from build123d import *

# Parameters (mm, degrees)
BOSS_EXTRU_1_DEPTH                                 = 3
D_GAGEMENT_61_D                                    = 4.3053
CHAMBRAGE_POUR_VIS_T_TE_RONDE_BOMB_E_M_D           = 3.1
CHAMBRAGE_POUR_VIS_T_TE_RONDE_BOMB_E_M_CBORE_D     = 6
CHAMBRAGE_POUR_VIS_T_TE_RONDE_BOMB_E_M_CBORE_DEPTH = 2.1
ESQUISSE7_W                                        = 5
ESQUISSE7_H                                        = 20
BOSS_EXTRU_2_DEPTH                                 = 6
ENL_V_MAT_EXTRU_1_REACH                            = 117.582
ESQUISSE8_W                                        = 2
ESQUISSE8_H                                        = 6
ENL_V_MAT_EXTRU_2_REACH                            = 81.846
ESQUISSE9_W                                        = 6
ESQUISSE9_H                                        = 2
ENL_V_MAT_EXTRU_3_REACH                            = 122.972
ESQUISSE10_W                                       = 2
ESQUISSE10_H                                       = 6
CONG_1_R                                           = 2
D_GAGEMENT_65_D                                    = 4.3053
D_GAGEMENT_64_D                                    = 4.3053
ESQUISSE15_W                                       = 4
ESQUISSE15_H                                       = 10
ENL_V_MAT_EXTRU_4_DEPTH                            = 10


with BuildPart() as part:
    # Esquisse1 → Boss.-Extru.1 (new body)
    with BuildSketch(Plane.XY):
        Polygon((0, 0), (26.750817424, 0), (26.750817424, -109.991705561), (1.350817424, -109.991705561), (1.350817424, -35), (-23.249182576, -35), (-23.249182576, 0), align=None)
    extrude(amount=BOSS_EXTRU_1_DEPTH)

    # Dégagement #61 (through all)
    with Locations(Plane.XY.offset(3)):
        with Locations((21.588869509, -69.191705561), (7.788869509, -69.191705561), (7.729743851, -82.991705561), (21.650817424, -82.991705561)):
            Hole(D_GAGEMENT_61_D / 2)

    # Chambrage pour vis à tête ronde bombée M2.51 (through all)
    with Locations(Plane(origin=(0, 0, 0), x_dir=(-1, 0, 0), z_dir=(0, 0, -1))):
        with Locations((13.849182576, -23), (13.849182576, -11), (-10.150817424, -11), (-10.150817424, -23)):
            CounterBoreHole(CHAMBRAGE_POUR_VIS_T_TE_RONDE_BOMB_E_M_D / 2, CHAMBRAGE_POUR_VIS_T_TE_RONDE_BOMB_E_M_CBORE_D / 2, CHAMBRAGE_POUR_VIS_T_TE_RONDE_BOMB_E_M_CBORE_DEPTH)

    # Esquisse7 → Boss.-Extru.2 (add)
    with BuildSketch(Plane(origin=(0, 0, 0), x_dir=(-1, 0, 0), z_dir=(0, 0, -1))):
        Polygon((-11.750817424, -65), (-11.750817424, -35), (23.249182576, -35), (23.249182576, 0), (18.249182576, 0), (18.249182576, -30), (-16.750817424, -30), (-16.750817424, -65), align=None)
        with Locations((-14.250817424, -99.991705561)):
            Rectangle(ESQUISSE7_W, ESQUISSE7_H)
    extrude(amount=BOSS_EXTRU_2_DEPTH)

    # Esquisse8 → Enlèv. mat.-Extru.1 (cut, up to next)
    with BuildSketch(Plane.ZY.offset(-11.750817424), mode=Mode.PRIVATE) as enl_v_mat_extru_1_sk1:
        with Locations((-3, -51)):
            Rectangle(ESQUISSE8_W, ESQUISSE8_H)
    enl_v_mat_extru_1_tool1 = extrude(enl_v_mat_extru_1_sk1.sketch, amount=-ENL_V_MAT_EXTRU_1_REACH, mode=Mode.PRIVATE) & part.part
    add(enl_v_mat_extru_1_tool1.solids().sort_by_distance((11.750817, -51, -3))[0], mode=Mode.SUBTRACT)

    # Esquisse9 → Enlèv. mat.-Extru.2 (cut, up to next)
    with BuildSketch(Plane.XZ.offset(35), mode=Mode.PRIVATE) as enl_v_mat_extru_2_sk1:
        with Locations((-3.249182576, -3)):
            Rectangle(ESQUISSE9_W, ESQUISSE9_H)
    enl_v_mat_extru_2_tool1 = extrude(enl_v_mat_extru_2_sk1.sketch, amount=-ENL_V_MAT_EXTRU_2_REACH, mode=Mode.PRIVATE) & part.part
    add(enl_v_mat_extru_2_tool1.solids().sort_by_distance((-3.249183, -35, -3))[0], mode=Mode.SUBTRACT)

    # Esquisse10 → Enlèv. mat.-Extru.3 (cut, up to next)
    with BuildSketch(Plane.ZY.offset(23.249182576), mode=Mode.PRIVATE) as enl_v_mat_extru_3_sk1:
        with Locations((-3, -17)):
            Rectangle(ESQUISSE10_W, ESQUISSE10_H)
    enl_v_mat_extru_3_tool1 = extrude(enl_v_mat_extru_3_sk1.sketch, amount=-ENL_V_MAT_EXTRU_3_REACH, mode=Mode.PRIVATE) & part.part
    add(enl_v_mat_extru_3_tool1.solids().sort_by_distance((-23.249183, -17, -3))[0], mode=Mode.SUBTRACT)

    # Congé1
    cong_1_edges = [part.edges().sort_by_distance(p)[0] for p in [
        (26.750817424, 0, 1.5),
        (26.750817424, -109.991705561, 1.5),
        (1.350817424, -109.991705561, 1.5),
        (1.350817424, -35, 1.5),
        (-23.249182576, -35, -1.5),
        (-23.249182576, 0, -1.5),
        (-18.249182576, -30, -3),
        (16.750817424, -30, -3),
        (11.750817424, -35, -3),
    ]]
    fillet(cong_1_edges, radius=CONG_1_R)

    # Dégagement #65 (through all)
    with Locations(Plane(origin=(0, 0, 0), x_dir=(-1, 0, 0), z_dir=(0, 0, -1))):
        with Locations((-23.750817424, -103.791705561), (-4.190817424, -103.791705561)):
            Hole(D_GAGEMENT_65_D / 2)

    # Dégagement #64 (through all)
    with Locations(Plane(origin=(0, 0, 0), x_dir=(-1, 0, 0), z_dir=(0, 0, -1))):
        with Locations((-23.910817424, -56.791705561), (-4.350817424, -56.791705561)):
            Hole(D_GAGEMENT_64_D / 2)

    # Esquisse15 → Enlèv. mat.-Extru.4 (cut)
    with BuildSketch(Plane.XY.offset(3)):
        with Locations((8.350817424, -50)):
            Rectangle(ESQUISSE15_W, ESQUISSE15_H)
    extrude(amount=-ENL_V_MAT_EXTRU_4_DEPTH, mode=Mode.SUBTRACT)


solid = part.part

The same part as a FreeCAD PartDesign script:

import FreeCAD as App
import Part
import Sketcher

V = App.Vector
Q = App.Units.Quantity


def edges_at(feature, points):
    """Names of the edges that pass closest to the given points."""
    edges = feature.Shape.Edges
    near = lambda p: min(range(len(edges)), key=lambda i: edges[i].distToShape(Part.Vertex(*p))[0])
    return sorted({f"Edge{near(p) + 1}" for p in points})

doc = App.newDocument("Part")
body = doc.addObject("PartDesign::Body", "Body")

sketch1 = doc.addObject("Sketcher::SketchObject", "Sketch")
body.addObject(sketch1)
sketch1.AttachmentSupport = (doc.XY_Plane, [""])
sketch1.MapMode = "FlatFace"
sketch1.addGeometry(Part.LineSegment(V(27, 0, 0), V(-23, 0, 0)), False)
sketch1.addGeometry(Part.LineSegment(V(-23, 0, 0), V(-23, -35, 0)), False)
sketch1.addGeometry(Part.LineSegment(V(-23, -35, 0), V(1, -35, 0)), False)
sketch1.addGeometry(Part.LineSegment(V(1, -35, 0), V(1, -110, 0)), False)
sketch1.addGeometry(Part.LineSegment(V(1, -110, 0), V(27, -110, 0)), False)
sketch1.addGeometry(Part.LineSegment(V(27, -110, 0), V(27, 0, 0)), False)
sketch1.addConstraint(Sketcher.Constraint("Coincident", 0, 2, 1, 1))
sketch1.addConstraint(Sketcher.Constraint("Coincident", 1, 2, 2, 1))
sketch1.addConstraint(Sketcher.Constraint("Coincident", 2, 2, 3, 1))
sketch1.addConstraint(Sketcher.Constraint("Coincident", 3, 2, 4, 1))
sketch1.addConstraint(Sketcher.Constraint("Coincident", 4, 2, 5, 1))
sketch1.addConstraint(Sketcher.Constraint("Coincident", 5, 2, 0, 1))
sketch1.addConstraint(Sketcher.Constraint("Horizontal", 0))
sketch1.addConstraint(Sketcher.Constraint("Vertical", 1))
sketch1.addConstraint(Sketcher.Constraint("Horizontal", 2))
sketch1.addConstraint(Sketcher.Constraint("Vertical", 3))
sketch1.addConstraint(Sketcher.Constraint("Horizontal", 4))
sketch1.addConstraint(Sketcher.Constraint("Vertical", 5))
sketch1.addConstraint(Sketcher.Constraint("PointOnObject", 0, 2, -1))
sketch1.addConstraint(Sketcher.Constraint("DistanceX", 0, 2, 0, 1, Q("50 mm")))
sketch1.addConstraint(Sketcher.Constraint("DistanceY", 1, 2, 1, 1, Q("35 mm")))
sketch1.addConstraint(Sketcher.Constraint("DistanceX", 2, 1, 2, 2, Q("24.6 mm")))
sketch1.addConstraint(Sketcher.Constraint("DistanceY", 3, 2, 3, 1, Q("74.991706 mm")))
sketch1.addConstraint(Sketcher.Constraint("DistanceX", 0, 2, -1, 1, Q("23.249183 mm")))
pad1 = doc.addObject("PartDesign::Pad", "Pad")
body.addObject(pad1)
pad1.Profile = sketch1
pad1.Length = 3

sketch2 = doc.addObject("Sketcher::SketchObject", "Sketch001")
body.addObject(sketch2)
sketch2.AttachmentSupport = (doc.XY_Plane, [""])
sketch2.MapMode = "FlatFace"
sketch2.AttachmentOffset = App.Placement(V(0, 0, 3), App.Rotation())
sketch2.addGeometry(Part.Circle(V(21.6, -69.2, 0), V(0, 0, 1), 2.2), False)
sketch2.addGeometry(Part.Circle(V(7.8, -69.2, 0), V(0, 0, 1), 2.2), False)
sketch2.addGeometry(Part.Circle(V(7.7, -83, 0), V(0, 0, 1), 2.2), False)
sketch2.addGeometry(Part.Circle(V(21.7, -83, 0), V(0, 0, 1), 2.2), False)
sketch2.addConstraint(Sketcher.Constraint("Equal", 0, 1))
sketch2.addConstraint(Sketcher.Constraint("Equal", 1, 2))
sketch2.addConstraint(Sketcher.Constraint("Equal", 2, 3))
sketch2.addConstraint(Sketcher.Constraint("Horizontal", 0, 3, 1, 3))
sketch2.addConstraint(Sketcher.Constraint("Horizontal", 2, 3, 3, 3))
sketch2.addConstraint(Sketcher.Constraint("Diameter", 0, Q("4.3053 mm")))
sketch2.addConstraint(Sketcher.Constraint("DistanceX", 1, 3, 0, 3, Q("13.8 mm")))
sketch2.addConstraint(Sketcher.Constraint("DistanceY", 2, 3, 1, 3, Q("13.8 mm")))
sketch2.addConstraint(Sketcher.Constraint("DistanceX", -1, 1, 0, 3, Q("21.58887 mm")))
sketch2.addConstraint(Sketcher.Constraint("DistanceY", 0, 3, -1, 1, Q("69.191706 mm")))
sketch2.addConstraint(Sketcher.Constraint("DistanceX", -1, 1, 2, 3, Q("7.729744 mm")))
sketch2.addConstraint(Sketcher.Constraint("DistanceX", -1, 1, 3, 3, Q("21.650817 mm")))
doc.recompute()
hole = doc.addObject("PartDesign::Hole", "Hole")
body.addObject(hole)
hole.Profile = sketch2
hole.ThreadType = "None"
hole.Diameter = 4.3053
hole.DepthType = "ThroughAll"

sketch3 = doc.addObject("Sketcher::SketchObject", "Sketch002")
body.addObject(sketch3)
sketch3.AttachmentSupport = (doc.XY_Plane, [""])
sketch3.MapMode = "FlatFace"
sketch3.addGeometry(Part.Circle(V(-13.8, -23, 0), V(0, 0, 1), 1.6), False)
sketch3.addGeometry(Part.Circle(V(-13.8, -11, 0), V(0, 0, 1), 1.6), False)
sketch3.addGeometry(Part.Circle(V(10.2, -11, 0), V(0, 0, 1), 1.6), False)
sketch3.addGeometry(Part.Circle(V(10.2, -23, 0), V(0, 0, 1), 1.6), False)
sketch3.addConstraint(Sketcher.Constraint("Equal", 0, 1))
sketch3.addConstraint(Sketcher.Constraint("Equal", 1, 2))
sketch3.addConstraint(Sketcher.Constraint("Equal", 2, 3))
sketch3.addConstraint(Sketcher.Constraint("Horizontal", 1, 3, 2, 3))
sketch3.addConstraint(Sketcher.Constraint("Horizontal", 0, 3, 3, 3))
sketch3.addConstraint(Sketcher.Constraint("Vertical", 0, 3, 1, 3))
sketch3.addConstraint(Sketcher.Constraint("Vertical", 2, 3, 3, 3))
sketch3.addConstraint(Sketcher.Constraint("Diameter", 0, Q("3.1 mm")))
sketch3.addConstraint(Sketcher.Constraint("DistanceY", 0, 3, -1, 1, Q("23 mm")))
sketch3.addConstraint(Sketcher.Constraint("DistanceY", 1, 3, -1, 1, Q("11 mm")))
sketch3.addConstraint(Sketcher.Constraint("DistanceX", 1, 3, 2, 3, Q("24 mm")))
sketch3.addConstraint(Sketcher.Constraint("DistanceX", 0, 3, -1, 1, Q("13.849183 mm")))
doc.recompute()
hole2 = doc.addObject("PartDesign::Hole", "Hole001")
body.addObject(hole2)
hole2.Profile = sketch3
hole2.ThreadType = "None"
hole2.Diameter = 3.1
hole2.DepthType = "ThroughAll"
hole2.HoleCutType = "Counterbore"
hole2.HoleCutDiameter = 6
hole2.HoleCutDepth = 2.1
hole2.Reversed = True

sketch4 = doc.addObject("Sketcher::SketchObject", "Sketch003")
body.addObject(sketch4)
sketch4.AttachmentSupport = (doc.XY_Plane, [""])
sketch4.MapMode = "FlatFace"
sketch4.addGeometry(Part.LineSegment(V(12, -65, 0), V(12, -35, 0)), False)
sketch4.addGeometry(Part.LineSegment(V(12, -35, 0), V(-23, -35, 0)), False)
sketch4.addGeometry(Part.LineSegment(V(-23, -35, 0), V(-23, 0, 0)), False)
sketch4.addGeometry(Part.LineSegment(V(-23, 0, 0), V(-18, 0, 0)), False)
sketch4.addGeometry(Part.LineSegment(V(-18, 0, 0), V(-18, -30, 0)), False)
sketch4.addGeometry(Part.LineSegment(V(-18, -30, 0), V(17, -30, 0)), False)
sketch4.addGeometry(Part.LineSegment(V(17, -30, 0), V(17, -65, 0)), False)
sketch4.addGeometry(Part.LineSegment(V(17, -65, 0), V(12, -65, 0)), False)
sketch4.addGeometry(Part.LineSegment(V(17, -90, 0), V(17, -110, 0)), False)
sketch4.addGeometry(Part.LineSegment(V(17, -110, 0), V(12, -110, 0)), False)
sketch4.addGeometry(Part.LineSegment(V(12, -110, 0), V(12, -90, 0)), False)
sketch4.addGeometry(Part.LineSegment(V(12, -90, 0), V(17, -90, 0)), False)
sketch4.addConstraint(Sketcher.Constraint("Coincident", 0, 2, 1, 1))
sketch4.addConstraint(Sketcher.Constraint("Coincident", 1, 2, 2, 1))
sketch4.addConstraint(Sketcher.Constraint("Coincident", 2, 2, 3, 1))
sketch4.addConstraint(Sketcher.Constraint("Coincident", 3, 2, 4, 1))
sketch4.addConstraint(Sketcher.Constraint("Coincident", 4, 2, 5, 1))
sketch4.addConstraint(Sketcher.Constraint("Coincident", 5, 2, 6, 1))
sketch4.addConstraint(Sketcher.Constraint("Coincident", 6, 2, 7, 1))
sketch4.addConstraint(Sketcher.Constraint("Coincident", 7, 2, 0, 1))
sketch4.addConstraint(Sketcher.Constraint("Coincident", 8, 2, 9, 1))
sketch4.addConstraint(Sketcher.Constraint("Coincident", 9, 2, 10, 1))
sketch4.addConstraint(Sketcher.Constraint("Coincident", 10, 2, 11, 1))
sketch4.addConstraint(Sketcher.Constraint("Coincident", 11, 2, 8, 1))
sketch4.addConstraint(Sketcher.Constraint("Vertical", 0))
sketch4.addConstraint(Sketcher.Constraint("Horizontal", 1))
sketch4.addConstraint(Sketcher.Constraint("Vertical", 2))
sketch4.addConstraint(Sketcher.Constraint("Horizontal", 3))
sketch4.addConstraint(Sketcher.Constraint("Vertical", 4))
sketch4.addConstraint(Sketcher.Constraint("Horizontal", 5))
sketch4.addConstraint(Sketcher.Constraint("Vertical", 6))
sketch4.addConstraint(Sketcher.Constraint("Horizontal", 7))
sketch4.addConstraint(Sketcher.Constraint("Vertical", 8))
sketch4.addConstraint(Sketcher.Constraint("Horizontal", 9))
sketch4.addConstraint(Sketcher.Constraint("Vertical", 10))
sketch4.addConstraint(Sketcher.Constraint("Horizontal", 11))
sketch4.addConstraint(Sketcher.Constraint("PointOnObject", 2, 2, -1))
sketch4.addConstraint(Sketcher.Constraint("Vertical", 6, 2, 8, 2))
sketch4.addConstraint(Sketcher.Constraint("Vertical", 7, 2, 9, 2))
sketch4.addConstraint(Sketcher.Constraint("Equal", 1, 5))
sketch4.addConstraint(Sketcher.Constraint("Equal", 5, 2))
sketch4.addConstraint(Sketcher.Constraint("Equal", 0, 4))
sketch4.addConstraint(Sketcher.Constraint("DistanceX", 1, 2, 1, 1, Q("35 mm")))
sketch4.addConstraint(Sketcher.Constraint("DistanceX", 3, 1, 3, 2, Q("5 mm")))
sketch4.addConstraint(Sketcher.Constraint("DistanceY", 0, 1, 0, 2, Q("30 mm")))
sketch4.addConstraint(Sketcher.Constraint("DistanceY", 8, 2, 8, 1, Q("20 mm")))
sketch4.addConstraint(Sketcher.Constraint("DistanceX", -1, 1, 0, 2, Q("11.750817 mm")))
sketch4.addConstraint(Sketcher.Constraint("DistanceY", 8, 2, -1, 1, Q("109.991706 mm")))
pad2 = doc.addObject("PartDesign::Pad", "Pad001")
body.addObject(pad2)
pad2.Profile = sketch4
pad2.Length = 6
pad2.Reversed = True

sketch5 = doc.addObject("Sketcher::SketchObject", "Sketch004")
body.addObject(sketch5)
sketch5.AttachmentSupport = (doc.YZ_Plane, [""])
sketch5.MapMode = "FlatFace"
sketch5.AttachmentOffset = App.Placement(V(0, 0, 11.750817), App.Rotation())
sketch5.addGeometry(Part.LineSegment(V(-48, -4, 0), V(-54, -4, 0)), False)
sketch5.addGeometry(Part.LineSegment(V(-54, -4, 0), V(-54, -2, 0)), False)
sketch5.addGeometry(Part.LineSegment(V(-54, -2, 0), V(-48, -2, 0)), False)
sketch5.addGeometry(Part.LineSegment(V(-48, -2, 0), V(-48, -4, 0)), False)
sketch5.addConstraint(Sketcher.Constraint("Coincident", 0, 2, 1, 1))
sketch5.addConstraint(Sketcher.Constraint("Coincident", 1, 2, 2, 1))
sketch5.addConstraint(Sketcher.Constraint("Coincident", 2, 2, 3, 1))
sketch5.addConstraint(Sketcher.Constraint("Coincident", 3, 2, 0, 1))
sketch5.addConstraint(Sketcher.Constraint("Horizontal", 0))
sketch5.addConstraint(Sketcher.Constraint("Vertical", 1))
sketch5.addConstraint(Sketcher.Constraint("Horizontal", 2))
sketch5.addConstraint(Sketcher.Constraint("Vertical", 3))
sketch5.addConstraint(Sketcher.Constraint("DistanceX", 0, 2, 0, 1, Q("6 mm")))
sketch5.addConstraint(Sketcher.Constraint("DistanceY", 1, 1, 1, 2, Q("2 mm")))
sketch5.addConstraint(Sketcher.Constraint("DistanceX", 0, 2, -1, 1, Q("54 mm")))
sketch5.addConstraint(Sketcher.Constraint("DistanceY", 0, 2, -1, 1, Q("4 mm")))
pocket1 = doc.addObject("PartDesign::Pocket", "Pocket")
body.addObject(pocket1)
pocket1.Profile = sketch5
pocket1.Type = "UpToFirst"
pocket1.Reversed = True

sketch6 = doc.addObject("Sketcher::SketchObject", "Sketch005")
body.addObject(sketch6)
sketch6.AttachmentSupport = (doc.XZ_Plane, [""])
sketch6.MapMode = "FlatFace"
sketch6.AttachmentOffset = App.Placement(V(0, 0, 35), App.Rotation())
sketch6.addGeometry(Part.LineSegment(V(-6.2, -2, 0), V(-6.2, -4, 0)), False)
sketch6.addGeometry(Part.LineSegment(V(-6.2, -4, 0), V(-0.2, -4, 0)), False)
sketch6.addGeometry(Part.LineSegment(V(-0.2, -4, 0), V(-0.2, -2, 0)), False)
sketch6.addGeometry(Part.LineSegment(V(-0.2, -2, 0), V(-6.2, -2, 0)), False)
sketch6.addConstraint(Sketcher.Constraint("Coincident", 0, 2, 1, 1))
sketch6.addConstraint(Sketcher.Constraint("Coincident", 1, 2, 2, 1))
sketch6.addConstraint(Sketcher.Constraint("Coincident", 2, 2, 3, 1))
sketch6.addConstraint(Sketcher.Constraint("Coincident", 3, 2, 0, 1))
sketch6.addConstraint(Sketcher.Constraint("Vertical", 0))
sketch6.addConstraint(Sketcher.Constraint("Horizontal", 1))
sketch6.addConstraint(Sketcher.Constraint("Vertical", 2))
sketch6.addConstraint(Sketcher.Constraint("Horizontal", 3))
sketch6.addConstraint(Sketcher.Constraint("DistanceX", 1, 1, 1, 2, Q("6 mm")))
sketch6.addConstraint(Sketcher.Constraint("DistanceY", 0, 2, 0, 1, Q("2 mm")))
sketch6.addConstraint(Sketcher.Constraint("DistanceY", 0, 2, -1, 1, Q("4 mm")))
sketch6.addConstraint(Sketcher.Constraint("DistanceX", 0, 2, -1, 1, Q("6.249183 mm")))
pocket2 = doc.addObject("PartDesign::Pocket", "Pocket001")
body.addObject(pocket2)
pocket2.Profile = sketch6
pocket2.Type = "UpToFirst"

sketch7 = doc.addObject("Sketcher::SketchObject", "Sketch006")
body.addObject(sketch7)
sketch7.AttachmentSupport = (doc.YZ_Plane, [""])
sketch7.MapMode = "FlatFace"
sketch7.AttachmentOffset = App.Placement(V(0, 0, -23.249183), App.Rotation())
sketch7.addGeometry(Part.LineSegment(V(-14, -4, 0), V(-20, -4, 0)), False)
sketch7.addGeometry(Part.LineSegment(V(-20, -4, 0), V(-20, -2, 0)), False)
sketch7.addGeometry(Part.LineSegment(V(-20, -2, 0), V(-14, -2, 0)), False)
sketch7.addGeometry(Part.LineSegment(V(-14, -2, 0), V(-14, -4, 0)), False)
sketch7.addConstraint(Sketcher.Constraint("Coincident", 0, 2, 1, 1))
sketch7.addConstraint(Sketcher.Constraint("Coincident", 1, 2, 2, 1))
sketch7.addConstraint(Sketcher.Constraint("Coincident", 2, 2, 3, 1))
sketch7.addConstraint(Sketcher.Constraint("Coincident", 3, 2, 0, 1))
sketch7.addConstraint(Sketcher.Constraint("Horizontal", 0))
sketch7.addConstraint(Sketcher.Constraint("Vertical", 1))
sketch7.addConstraint(Sketcher.Constraint("Horizontal", 2))
sketch7.addConstraint(Sketcher.Constraint("Vertical", 3))
sketch7.addConstraint(Sketcher.Constraint("DistanceX", 0, 2, 0, 1, Q("6 mm")))
sketch7.addConstraint(Sketcher.Constraint("DistanceY", 1, 1, 1, 2, Q("2 mm")))
sketch7.addConstraint(Sketcher.Constraint("DistanceX", 0, 2, -1, 1, Q("20 mm")))
sketch7.addConstraint(Sketcher.Constraint("DistanceY", 0, 2, -1, 1, Q("4 mm")))
pocket3 = doc.addObject("PartDesign::Pocket", "Pocket002")
body.addObject(pocket3)
pocket3.Profile = sketch7
pocket3.Type = "UpToFirst"
pocket3.Reversed = True
doc.recompute()

fillet = doc.addObject("PartDesign::Fillet", "Fillet")
body.addObject(fillet)
fillet.Base = (pocket3, edges_at(pocket3, [
    (26.751, 0, 1.5),
    (26.751, -109.992, 1.5),
    (1.351, -109.992, 1.5),
    (1.351, -35, 1.5),
    (-23.249, -35, -1.5),
    (-23.249, 0, -1.5),
    (-18.249, -30, -3),
    (16.751, -30, -3),
    (11.751, -35, -3),
]))
fillet.Radius = 2

sketch8 = doc.addObject("Sketcher::SketchObject", "Sketch007")
body.addObject(sketch8)
sketch8.AttachmentSupport = (doc.XY_Plane, [""])
sketch8.MapMode = "FlatFace"
sketch8.addGeometry(Part.Circle(V(23.8, -103.8, 0), V(0, 0, 1), 2.2), False)
sketch8.addGeometry(Part.Circle(V(4.2, -103.8, 0), V(0, 0, 1), 2.2), False)
sketch8.addConstraint(Sketcher.Constraint("Equal", 0, 1))
sketch8.addConstraint(Sketcher.Constraint("Horizontal", 0, 3, 1, 3))
sketch8.addConstraint(Sketcher.Constraint("Diameter", 0, Q("4.3053 mm")))
sketch8.addConstraint(Sketcher.Constraint("DistanceX", 1, 3, 0, 3, Q("19.56 mm")))
sketch8.addConstraint(Sketcher.Constraint("DistanceX", -1, 1, 0, 3, Q("23.750817 mm")))
sketch8.addConstraint(Sketcher.Constraint("DistanceY", 0, 3, -1, 1, Q("103.791706 mm")))
doc.recompute()
hole3 = doc.addObject("PartDesign::Hole", "Hole002")
body.addObject(hole3)
hole3.Profile = sketch8
hole3.ThreadType = "None"
hole3.Diameter = 4.3053
hole3.DepthType = "ThroughAll"
hole3.Reversed = True

sketch9 = doc.addObject("Sketcher::SketchObject", "Sketch008")
body.addObject(sketch9)
sketch9.AttachmentSupport = (doc.XY_Plane, [""])
sketch9.MapMode = "FlatFace"
sketch9.addGeometry(Part.Circle(V(23.9, -56.8, 0), V(0, 0, 1), 2.2), False)
sketch9.addGeometry(Part.Circle(V(4.4, -56.8, 0), V(0, 0, 1), 2.2), False)
sketch9.addConstraint(Sketcher.Constraint("Equal", 0, 1))
sketch9.addConstraint(Sketcher.Constraint("Horizontal", 0, 3, 1, 3))
sketch9.addConstraint(Sketcher.Constraint("Diameter", 0, Q("4.3053 mm")))
sketch9.addConstraint(Sketcher.Constraint("DistanceX", 1, 3, 0, 3, Q("19.56 mm")))
sketch9.addConstraint(Sketcher.Constraint("DistanceX", -1, 1, 0, 3, Q("23.910817 mm")))
sketch9.addConstraint(Sketcher.Constraint("DistanceY", 0, 3, -1, 1, Q("56.791706 mm")))
doc.recompute()
hole4 = doc.addObject("PartDesign::Hole", "Hole003")
body.addObject(hole4)
hole4.Profile = sketch9
hole4.ThreadType = "None"
hole4.Diameter = 4.3053
hole4.DepthType = "ThroughAll"
hole4.Reversed = True

sketch10 = doc.addObject("Sketcher::SketchObject", "Sketch009")
body.addObject(sketch10)
sketch10.AttachmentSupport = (doc.XY_Plane, [""])
sketch10.MapMode = "FlatFace"
sketch10.AttachmentOffset = App.Placement(V(0, 0, 3), App.Rotation())
sketch10.addGeometry(Part.LineSegment(V(6.4, -45, 0), V(6.4, -55, 0)), False)
sketch10.addGeometry(Part.LineSegment(V(6.4, -55, 0), V(10.4, -55, 0)), False)
sketch10.addGeometry(Part.LineSegment(V(10.4, -55, 0), V(10.4, -45, 0)), False)
sketch10.addGeometry(Part.LineSegment(V(10.4, -45, 0), V(6.4, -45, 0)), False)
sketch10.addConstraint(Sketcher.Constraint("Coincident", 0, 2, 1, 1))
sketch10.addConstraint(Sketcher.Constraint("Coincident", 1, 2, 2, 1))
sketch10.addConstraint(Sketcher.Constraint("Coincident", 2, 2, 3, 1))
sketch10.addConstraint(Sketcher.Constraint("Coincident", 3, 2, 0, 1))
sketch10.addConstraint(Sketcher.Constraint("Vertical", 0))
sketch10.addConstraint(Sketcher.Constraint("Horizontal", 1))
sketch10.addConstraint(Sketcher.Constraint("Vertical", 2))
sketch10.addConstraint(Sketcher.Constraint("Horizontal", 3))
sketch10.addConstraint(Sketcher.Constraint("DistanceX", 1, 1, 1, 2, Q("4 mm")))
sketch10.addConstraint(Sketcher.Constraint("DistanceY", 0, 2, 0, 1, Q("10 mm")))
sketch10.addConstraint(Sketcher.Constraint("DistanceY", 0, 2, -1, 1, Q("55 mm")))
sketch10.addConstraint(Sketcher.Constraint("DistanceX", -1, 1, 0, 2, Q("6.350817 mm")))
pocket4 = doc.addObject("PartDesign::Pocket", "Pocket003")
body.addObject(pocket4)
pocket4.Profile = sketch10
pocket4.Length = 10

doc.recompute()
